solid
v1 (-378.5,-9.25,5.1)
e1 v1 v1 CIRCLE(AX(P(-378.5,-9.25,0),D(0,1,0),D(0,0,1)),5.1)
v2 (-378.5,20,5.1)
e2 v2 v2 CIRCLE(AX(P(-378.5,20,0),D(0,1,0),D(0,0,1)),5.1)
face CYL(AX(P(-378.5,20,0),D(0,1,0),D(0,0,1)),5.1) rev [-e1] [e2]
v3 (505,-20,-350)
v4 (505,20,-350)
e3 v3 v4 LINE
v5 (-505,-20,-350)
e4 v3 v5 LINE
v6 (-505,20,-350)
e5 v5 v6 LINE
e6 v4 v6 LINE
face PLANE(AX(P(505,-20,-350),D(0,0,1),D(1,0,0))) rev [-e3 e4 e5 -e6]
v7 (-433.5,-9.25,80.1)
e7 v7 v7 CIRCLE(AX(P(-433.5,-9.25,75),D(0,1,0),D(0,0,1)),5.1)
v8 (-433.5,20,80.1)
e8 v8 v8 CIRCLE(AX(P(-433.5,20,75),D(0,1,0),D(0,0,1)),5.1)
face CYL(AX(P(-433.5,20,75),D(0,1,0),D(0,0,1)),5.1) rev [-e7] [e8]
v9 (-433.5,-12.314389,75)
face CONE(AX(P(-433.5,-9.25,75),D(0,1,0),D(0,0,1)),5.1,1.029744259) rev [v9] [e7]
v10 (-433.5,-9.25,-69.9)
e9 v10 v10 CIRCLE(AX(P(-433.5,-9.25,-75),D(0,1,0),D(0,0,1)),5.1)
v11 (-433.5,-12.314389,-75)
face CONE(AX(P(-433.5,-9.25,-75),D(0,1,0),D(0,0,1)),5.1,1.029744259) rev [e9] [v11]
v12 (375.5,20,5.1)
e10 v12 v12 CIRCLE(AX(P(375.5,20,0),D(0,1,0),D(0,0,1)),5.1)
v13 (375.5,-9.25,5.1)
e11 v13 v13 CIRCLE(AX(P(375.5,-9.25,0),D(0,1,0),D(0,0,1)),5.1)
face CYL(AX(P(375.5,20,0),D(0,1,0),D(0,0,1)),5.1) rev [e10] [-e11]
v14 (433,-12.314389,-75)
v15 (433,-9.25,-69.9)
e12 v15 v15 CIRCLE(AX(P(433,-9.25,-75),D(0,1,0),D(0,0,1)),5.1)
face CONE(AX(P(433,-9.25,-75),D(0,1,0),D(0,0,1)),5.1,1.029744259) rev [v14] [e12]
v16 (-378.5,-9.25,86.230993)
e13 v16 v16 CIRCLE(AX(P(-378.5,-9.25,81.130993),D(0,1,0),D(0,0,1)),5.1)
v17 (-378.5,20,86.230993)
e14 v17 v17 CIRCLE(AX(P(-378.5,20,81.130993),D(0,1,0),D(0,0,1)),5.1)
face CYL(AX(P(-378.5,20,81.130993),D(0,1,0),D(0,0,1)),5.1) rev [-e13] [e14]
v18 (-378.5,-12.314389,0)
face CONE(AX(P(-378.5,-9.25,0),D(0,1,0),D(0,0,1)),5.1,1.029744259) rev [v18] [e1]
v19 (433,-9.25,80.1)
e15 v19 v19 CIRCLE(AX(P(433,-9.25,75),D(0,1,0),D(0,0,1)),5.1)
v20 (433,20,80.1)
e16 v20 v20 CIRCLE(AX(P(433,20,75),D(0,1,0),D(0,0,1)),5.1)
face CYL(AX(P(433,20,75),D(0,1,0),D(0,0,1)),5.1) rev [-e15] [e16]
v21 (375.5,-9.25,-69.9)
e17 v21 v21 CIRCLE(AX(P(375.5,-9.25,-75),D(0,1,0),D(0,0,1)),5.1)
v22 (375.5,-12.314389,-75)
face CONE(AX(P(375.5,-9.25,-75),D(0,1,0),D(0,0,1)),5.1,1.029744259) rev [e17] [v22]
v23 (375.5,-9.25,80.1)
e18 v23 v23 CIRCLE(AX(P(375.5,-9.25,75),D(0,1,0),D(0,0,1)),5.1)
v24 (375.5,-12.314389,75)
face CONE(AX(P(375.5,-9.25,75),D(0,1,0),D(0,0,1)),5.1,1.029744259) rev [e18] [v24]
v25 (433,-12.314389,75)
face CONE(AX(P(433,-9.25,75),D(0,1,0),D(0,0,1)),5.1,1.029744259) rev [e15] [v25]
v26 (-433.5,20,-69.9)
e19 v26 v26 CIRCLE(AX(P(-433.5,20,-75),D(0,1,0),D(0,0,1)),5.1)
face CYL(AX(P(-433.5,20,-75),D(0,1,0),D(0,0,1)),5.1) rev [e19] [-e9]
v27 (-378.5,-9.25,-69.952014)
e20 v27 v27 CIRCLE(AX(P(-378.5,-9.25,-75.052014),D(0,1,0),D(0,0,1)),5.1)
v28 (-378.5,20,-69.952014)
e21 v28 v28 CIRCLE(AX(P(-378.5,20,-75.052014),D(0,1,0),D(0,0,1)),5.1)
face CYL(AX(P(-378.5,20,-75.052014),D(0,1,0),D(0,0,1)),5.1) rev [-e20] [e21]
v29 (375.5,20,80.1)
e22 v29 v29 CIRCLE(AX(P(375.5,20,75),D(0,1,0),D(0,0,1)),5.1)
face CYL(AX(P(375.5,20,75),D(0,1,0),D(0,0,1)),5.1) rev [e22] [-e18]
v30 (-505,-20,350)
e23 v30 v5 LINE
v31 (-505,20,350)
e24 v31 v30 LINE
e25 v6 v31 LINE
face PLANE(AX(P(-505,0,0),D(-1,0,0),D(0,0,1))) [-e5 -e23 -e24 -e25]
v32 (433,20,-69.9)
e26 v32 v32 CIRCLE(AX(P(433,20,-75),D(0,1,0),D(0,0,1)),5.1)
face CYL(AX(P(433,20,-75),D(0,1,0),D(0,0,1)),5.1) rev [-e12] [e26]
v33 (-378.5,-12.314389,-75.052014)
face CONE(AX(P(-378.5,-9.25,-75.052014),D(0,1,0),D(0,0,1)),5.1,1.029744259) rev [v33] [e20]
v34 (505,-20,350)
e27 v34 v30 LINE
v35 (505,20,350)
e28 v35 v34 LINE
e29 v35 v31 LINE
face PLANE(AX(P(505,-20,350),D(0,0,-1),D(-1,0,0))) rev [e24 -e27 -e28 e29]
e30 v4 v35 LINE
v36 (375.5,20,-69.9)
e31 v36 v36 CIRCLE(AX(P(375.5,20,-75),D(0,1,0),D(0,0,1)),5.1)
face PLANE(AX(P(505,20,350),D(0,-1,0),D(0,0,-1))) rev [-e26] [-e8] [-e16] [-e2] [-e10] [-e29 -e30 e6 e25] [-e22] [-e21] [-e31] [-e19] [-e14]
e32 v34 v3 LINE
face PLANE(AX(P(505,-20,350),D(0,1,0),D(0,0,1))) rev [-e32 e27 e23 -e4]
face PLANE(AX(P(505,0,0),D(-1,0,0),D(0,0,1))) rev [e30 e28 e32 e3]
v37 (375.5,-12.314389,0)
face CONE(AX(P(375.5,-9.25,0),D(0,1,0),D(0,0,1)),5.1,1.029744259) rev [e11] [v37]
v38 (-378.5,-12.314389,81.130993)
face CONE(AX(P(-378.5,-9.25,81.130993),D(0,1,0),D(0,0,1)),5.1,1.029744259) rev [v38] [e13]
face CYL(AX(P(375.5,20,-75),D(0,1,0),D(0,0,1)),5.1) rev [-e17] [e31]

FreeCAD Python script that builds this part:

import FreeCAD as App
import Part
import Sketcher

V = App.Vector
Q = App.Units.Quantity


def add_polygon(sketch, points):
    """Adds a closed chain of lines whose ends are joined by coincident constraints."""
    first, n = sketch.GeometryCount, len(points)
    for a, b in zip(points, points[1:] + points[:1]):
        sketch.addGeometry(Part.LineSegment(App.Vector(*a, 0), App.Vector(*b, 0)), False)
    for i in range(n):
        sketch.addConstraint(Sketcher.Constraint("Coincident", first + i, 2, first + (i + 1) % n, 1))

doc = App.newDocument("Part")
body = doc.addObject("PartDesign::Body", "Body")

sketch1 = body.newObject("Sketcher::SketchObject", "Sketch")
sketch1.AttachmentSupport = (doc.getObject("YZ_Plane"), [""])
sketch1.MapMode = "FlatFace"
add_polygon(sketch1, [(20, 350), (-20, 350), (-20, -350), (20, -350)])
sketch1.addConstraint(Sketcher.Constraint("Horizontal", 0))
sketch1.addConstraint(Sketcher.Constraint("Vertical", 1))
sketch1.addConstraint(Sketcher.Constraint("Horizontal", 2))
sketch1.addConstraint(Sketcher.Constraint("Vertical", 3))
sketch1.addConstraint(Sketcher.Constraint("Symmetric", 0, 2, 2, 2, -1, 1))
sketch1.addConstraint(Sketcher.Constraint("DistanceX", 0, 2, 0, 1, Q("40 mm")))
sketch1.addConstraint(Sketcher.Constraint("DistanceY", 1, 2, 1, 1, Q("700 mm")))
pad1 = body.newObject("PartDesign::Pad", "Pad")
pad1.Profile = sketch1
pad1.Length = 1010
pad1.Midplane = True

sketch2 = body.newObject("Sketcher::SketchObject", "Sketch001")
sketch2.AttachmentSupport = (doc.getObject("XZ_Plane"), [""])
sketch2.MapMode = "FlatFace"
sketch2.AttachmentOffset = App.Placement(V(0, 0, -20), App.Rotation())
sketch2.addGeometry(Part.Circle(V(-378, -75, 0), V(0, 0, 1), 5), False)
sketch2.addGeometry(Part.Circle(V(-434, -75, 0), V(0, 0, 1), 5), False)
sketch2.addGeometry(Part.Circle(V(-378, 81, 0), V(0, 0, 1), 5), False)
sketch2.addGeometry(Part.Circle(V(-434, 75, 0), V(0, 0, 1), 5), False)
sketch2.addGeometry(Part.Circle(V(433, -75, 0), V(0, 0, 1), 5), False)
sketch2.addGeometry(Part.Circle(V(376, -75, 0), V(0, 0, 1), 5), False)
sketch2.addGeometry(Part.Circle(V(433, 75, 0), V(0, 0, 1), 5), False)
sketch2.addGeometry(Part.Circle(V(376, 75, 0), V(0, 0, 1), 5), False)
sketch2.addGeometry(Part.Circle(V(376, 0, 0), V(0, 0, 1), 5), False)
sketch2.addGeometry(Part.Circle(V(-378, 0, 0), V(0, 0, 1), 5), False)
sketch2.addConstraint(Sketcher.Constraint("Equal", 0, 1))
sketch2.addConstraint(Sketcher.Constraint("Equal", 1, 2))
sketch2.addConstraint(Sketcher.Constraint("Equal", 2, 3))
sketch2.addConstraint(Sketcher.Constraint("Equal", 3, 4))
sketch2.addConstraint(Sketcher.Constraint("Equal", 4, 5))
sketch2.addConstraint(Sketcher.Constraint("Equal", 5, 6))
sketch2.addConstraint(Sketcher.Constraint("Equal", 6, 7))
sketch2.addConstraint(Sketcher.Constraint("Equal", 7, 8))
sketch2.addConstraint(Sketcher.Constraint("Equal", 8, 9))
sketch2.addConstraint(Sketcher.Constraint("Symmetric", 1, 3, 3, 3, -1))
sketch2.addConstraint(Sketcher.Constraint("Symmetric", 4, 3, 6, 3, -1))
sketch2.addConstraint(Sketcher.Constraint("Symmetric", 5, 3, 7, 3, -1))
sketch2.addConstraint(Sketcher.Constraint("PointOnObject", 8, 3, -1))
sketch2.addConstraint(Sketcher.Constraint("PointOnObject", 9, 3, -1))
sketch2.addConstraint(Sketcher.Constraint("Horizontal", 1, 3, 4, 3))
sketch2.addConstraint(Sketcher.Constraint("Horizontal", 4, 3, 5, 3))
sketch2.addConstraint(Sketcher.Constraint("Vertical", 0, 3, 2, 3))
sketch2.addConstraint(Sketcher.Constraint("Vertical", 7, 3, 8, 3))
sketch2.addConstraint(Sketcher.Constraint("Vertical", 2, 3, 9, 3))
sketch2.addConstraint(Sketcher.Constraint("Diameter", 0, Q("10.2 mm")))
sketch2.addConstraint(Sketcher.Constraint("DistanceY", 1, 3, -1, 1, Q("75 mm")))
sketch2.addConstraint(Sketcher.Constraint("DistanceX", -1, 1, 4, 3, Q("433 mm")))
sketch2.addConstraint(Sketcher.Constraint("DistanceX", 1, 3, 0, 3, Q("55 mm")))
sketch2.addConstraint(Sketcher.Constraint("DistanceX", 0, 3, 5, 3, Q("754 mm")))
sketch2.addConstraint(Sketcher.Constraint("DistanceX", 0, 3, -1, 1, Q("378.5 mm")))
sketch2.addConstraint(Sketcher.Constraint("DistanceY", 0, 3, -1, 1, Q("75.052014 mm")))
sketch2.addConstraint(Sketcher.Constraint("DistanceY", -1, 1, 2, 3, Q("81.130993 mm")))
doc.recompute()
hole = body.newObject("PartDesign::Hole", "Hole")
hole.Profile = sketch2
hole.ThreadType = "None"
hole.Diameter = 10.2
hole.DepthType = "Dimension"
hole.Depth = 29.25
hole.DrillPoint = "Angled"
hole.DrillPointAngle = 118
hole.Reversed = True

doc.recompute()
